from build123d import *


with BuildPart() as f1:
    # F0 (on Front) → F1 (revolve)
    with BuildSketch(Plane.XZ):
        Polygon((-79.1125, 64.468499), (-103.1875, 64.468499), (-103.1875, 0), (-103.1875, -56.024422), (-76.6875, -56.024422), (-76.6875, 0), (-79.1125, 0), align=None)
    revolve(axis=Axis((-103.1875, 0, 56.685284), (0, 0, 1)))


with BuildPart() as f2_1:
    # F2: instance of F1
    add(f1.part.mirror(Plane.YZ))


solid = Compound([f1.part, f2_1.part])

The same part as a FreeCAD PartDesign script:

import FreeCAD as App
import Part
import Sketcher

V = App.Vector
Q = App.Units.Quantity

doc = App.newDocument("Part")
body = doc.addObject("PartDesign::Body", "Body")

sketch1 = body.newObject("Sketcher::SketchObject", "Sketch")
sketch1.AttachmentSupport = (doc.getObject("XZ_Plane"), [""])
sketch1.MapMode = "FlatFace"
sketch1.addGeometry([
    Part.LineSegment(V(-79.1, 64.5, 0), V(-103.2, 64.5, 0)),
    Part.LineSegment(V(-103.2, 64.5, 0), V(-103.2, -56, 0)),
    Part.LineSegment(V(-103.2, -56, 0), V(-76.7, -56, 0)),
    Part.LineSegment(V(-76.7, -56, 0), V(-76.7, 0, 0)),
    Part.LineSegment(V(-76.7, 0, 0), V(-79.1, 0, 0)),
    Part.LineSegment(V(-79.1, 0, 0), V(-79.1, 64.5, 0)),
], False)
sketch1.addGeometry(Part.LineSegment(V(-103.2, -56, 0), V(-103.2, 64.5, 0)), True)
sketch1.addConstraint([
    Sketcher.Constraint("Coincident", 0, 2, 1, 1),
    Sketcher.Constraint("Coincident", 1, 2, 2, 1),
    Sketcher.Constraint("Coincident", 2, 2, 3, 1),
    Sketcher.Constraint("Coincident", 3, 2, 4, 1),
    Sketcher.Constraint("Coincident", 4, 2, 5, 1),
    Sketcher.Constraint("Coincident", 5, 2, 0, 1),
    Sketcher.Constraint("Horizontal", 0),
    Sketcher.Constraint("Vertical", 1),
    Sketcher.Constraint("Horizontal", 2),
    Sketcher.Constraint("Vertical", 3),
    Sketcher.Constraint("Horizontal", 4),
    Sketcher.Constraint("Vertical", 5),
    Sketcher.Constraint("Vertical", 6),
    Sketcher.Constraint("Coincident", 6, 1, 1, 2),
    Sketcher.Constraint("PointOnObject", 3, 2, -1),
    Sketcher.Constraint("Horizontal", 5, 2, 6, 2),
    Sketcher.Constraint("DistanceX", 2, 1, 2, 2, Q("26.5 mm")),
    Sketcher.Constraint("DistanceX", 0, 2, 0, 1, Q("24.075 mm")),
    Sketcher.Constraint("DistanceY", 5, 1, 5, 2, Q("64.468499 mm")),
    Sketcher.Constraint("DistanceY", 1, 2, 1, 1, Q("120.492921 mm")),
    Sketcher.Constraint("DistanceX", 0, 2, -1, 1, Q("103.1875 mm")),
])
revolution = body.newObject("PartDesign::Revolution", "Revolution")
revolution.Profile = sketch1
revolution.ReferenceAxis = (sketch1, ["Axis0"])
revolution.Angle = 360
body2 = doc.addObject("PartDesign::Body", "Body001")
doc.recompute()

mirroring = doc.addObject("Part::Mirroring", "Mirroring")
mirroring.Source = body
mirroring.Base = V(0, 0, 0)
mirroring.Normal = V(1, 0, 0)
body2.BaseFeature = mirroring
doc.recompute()
mirroring.Visibility = False

doc.recompute()
